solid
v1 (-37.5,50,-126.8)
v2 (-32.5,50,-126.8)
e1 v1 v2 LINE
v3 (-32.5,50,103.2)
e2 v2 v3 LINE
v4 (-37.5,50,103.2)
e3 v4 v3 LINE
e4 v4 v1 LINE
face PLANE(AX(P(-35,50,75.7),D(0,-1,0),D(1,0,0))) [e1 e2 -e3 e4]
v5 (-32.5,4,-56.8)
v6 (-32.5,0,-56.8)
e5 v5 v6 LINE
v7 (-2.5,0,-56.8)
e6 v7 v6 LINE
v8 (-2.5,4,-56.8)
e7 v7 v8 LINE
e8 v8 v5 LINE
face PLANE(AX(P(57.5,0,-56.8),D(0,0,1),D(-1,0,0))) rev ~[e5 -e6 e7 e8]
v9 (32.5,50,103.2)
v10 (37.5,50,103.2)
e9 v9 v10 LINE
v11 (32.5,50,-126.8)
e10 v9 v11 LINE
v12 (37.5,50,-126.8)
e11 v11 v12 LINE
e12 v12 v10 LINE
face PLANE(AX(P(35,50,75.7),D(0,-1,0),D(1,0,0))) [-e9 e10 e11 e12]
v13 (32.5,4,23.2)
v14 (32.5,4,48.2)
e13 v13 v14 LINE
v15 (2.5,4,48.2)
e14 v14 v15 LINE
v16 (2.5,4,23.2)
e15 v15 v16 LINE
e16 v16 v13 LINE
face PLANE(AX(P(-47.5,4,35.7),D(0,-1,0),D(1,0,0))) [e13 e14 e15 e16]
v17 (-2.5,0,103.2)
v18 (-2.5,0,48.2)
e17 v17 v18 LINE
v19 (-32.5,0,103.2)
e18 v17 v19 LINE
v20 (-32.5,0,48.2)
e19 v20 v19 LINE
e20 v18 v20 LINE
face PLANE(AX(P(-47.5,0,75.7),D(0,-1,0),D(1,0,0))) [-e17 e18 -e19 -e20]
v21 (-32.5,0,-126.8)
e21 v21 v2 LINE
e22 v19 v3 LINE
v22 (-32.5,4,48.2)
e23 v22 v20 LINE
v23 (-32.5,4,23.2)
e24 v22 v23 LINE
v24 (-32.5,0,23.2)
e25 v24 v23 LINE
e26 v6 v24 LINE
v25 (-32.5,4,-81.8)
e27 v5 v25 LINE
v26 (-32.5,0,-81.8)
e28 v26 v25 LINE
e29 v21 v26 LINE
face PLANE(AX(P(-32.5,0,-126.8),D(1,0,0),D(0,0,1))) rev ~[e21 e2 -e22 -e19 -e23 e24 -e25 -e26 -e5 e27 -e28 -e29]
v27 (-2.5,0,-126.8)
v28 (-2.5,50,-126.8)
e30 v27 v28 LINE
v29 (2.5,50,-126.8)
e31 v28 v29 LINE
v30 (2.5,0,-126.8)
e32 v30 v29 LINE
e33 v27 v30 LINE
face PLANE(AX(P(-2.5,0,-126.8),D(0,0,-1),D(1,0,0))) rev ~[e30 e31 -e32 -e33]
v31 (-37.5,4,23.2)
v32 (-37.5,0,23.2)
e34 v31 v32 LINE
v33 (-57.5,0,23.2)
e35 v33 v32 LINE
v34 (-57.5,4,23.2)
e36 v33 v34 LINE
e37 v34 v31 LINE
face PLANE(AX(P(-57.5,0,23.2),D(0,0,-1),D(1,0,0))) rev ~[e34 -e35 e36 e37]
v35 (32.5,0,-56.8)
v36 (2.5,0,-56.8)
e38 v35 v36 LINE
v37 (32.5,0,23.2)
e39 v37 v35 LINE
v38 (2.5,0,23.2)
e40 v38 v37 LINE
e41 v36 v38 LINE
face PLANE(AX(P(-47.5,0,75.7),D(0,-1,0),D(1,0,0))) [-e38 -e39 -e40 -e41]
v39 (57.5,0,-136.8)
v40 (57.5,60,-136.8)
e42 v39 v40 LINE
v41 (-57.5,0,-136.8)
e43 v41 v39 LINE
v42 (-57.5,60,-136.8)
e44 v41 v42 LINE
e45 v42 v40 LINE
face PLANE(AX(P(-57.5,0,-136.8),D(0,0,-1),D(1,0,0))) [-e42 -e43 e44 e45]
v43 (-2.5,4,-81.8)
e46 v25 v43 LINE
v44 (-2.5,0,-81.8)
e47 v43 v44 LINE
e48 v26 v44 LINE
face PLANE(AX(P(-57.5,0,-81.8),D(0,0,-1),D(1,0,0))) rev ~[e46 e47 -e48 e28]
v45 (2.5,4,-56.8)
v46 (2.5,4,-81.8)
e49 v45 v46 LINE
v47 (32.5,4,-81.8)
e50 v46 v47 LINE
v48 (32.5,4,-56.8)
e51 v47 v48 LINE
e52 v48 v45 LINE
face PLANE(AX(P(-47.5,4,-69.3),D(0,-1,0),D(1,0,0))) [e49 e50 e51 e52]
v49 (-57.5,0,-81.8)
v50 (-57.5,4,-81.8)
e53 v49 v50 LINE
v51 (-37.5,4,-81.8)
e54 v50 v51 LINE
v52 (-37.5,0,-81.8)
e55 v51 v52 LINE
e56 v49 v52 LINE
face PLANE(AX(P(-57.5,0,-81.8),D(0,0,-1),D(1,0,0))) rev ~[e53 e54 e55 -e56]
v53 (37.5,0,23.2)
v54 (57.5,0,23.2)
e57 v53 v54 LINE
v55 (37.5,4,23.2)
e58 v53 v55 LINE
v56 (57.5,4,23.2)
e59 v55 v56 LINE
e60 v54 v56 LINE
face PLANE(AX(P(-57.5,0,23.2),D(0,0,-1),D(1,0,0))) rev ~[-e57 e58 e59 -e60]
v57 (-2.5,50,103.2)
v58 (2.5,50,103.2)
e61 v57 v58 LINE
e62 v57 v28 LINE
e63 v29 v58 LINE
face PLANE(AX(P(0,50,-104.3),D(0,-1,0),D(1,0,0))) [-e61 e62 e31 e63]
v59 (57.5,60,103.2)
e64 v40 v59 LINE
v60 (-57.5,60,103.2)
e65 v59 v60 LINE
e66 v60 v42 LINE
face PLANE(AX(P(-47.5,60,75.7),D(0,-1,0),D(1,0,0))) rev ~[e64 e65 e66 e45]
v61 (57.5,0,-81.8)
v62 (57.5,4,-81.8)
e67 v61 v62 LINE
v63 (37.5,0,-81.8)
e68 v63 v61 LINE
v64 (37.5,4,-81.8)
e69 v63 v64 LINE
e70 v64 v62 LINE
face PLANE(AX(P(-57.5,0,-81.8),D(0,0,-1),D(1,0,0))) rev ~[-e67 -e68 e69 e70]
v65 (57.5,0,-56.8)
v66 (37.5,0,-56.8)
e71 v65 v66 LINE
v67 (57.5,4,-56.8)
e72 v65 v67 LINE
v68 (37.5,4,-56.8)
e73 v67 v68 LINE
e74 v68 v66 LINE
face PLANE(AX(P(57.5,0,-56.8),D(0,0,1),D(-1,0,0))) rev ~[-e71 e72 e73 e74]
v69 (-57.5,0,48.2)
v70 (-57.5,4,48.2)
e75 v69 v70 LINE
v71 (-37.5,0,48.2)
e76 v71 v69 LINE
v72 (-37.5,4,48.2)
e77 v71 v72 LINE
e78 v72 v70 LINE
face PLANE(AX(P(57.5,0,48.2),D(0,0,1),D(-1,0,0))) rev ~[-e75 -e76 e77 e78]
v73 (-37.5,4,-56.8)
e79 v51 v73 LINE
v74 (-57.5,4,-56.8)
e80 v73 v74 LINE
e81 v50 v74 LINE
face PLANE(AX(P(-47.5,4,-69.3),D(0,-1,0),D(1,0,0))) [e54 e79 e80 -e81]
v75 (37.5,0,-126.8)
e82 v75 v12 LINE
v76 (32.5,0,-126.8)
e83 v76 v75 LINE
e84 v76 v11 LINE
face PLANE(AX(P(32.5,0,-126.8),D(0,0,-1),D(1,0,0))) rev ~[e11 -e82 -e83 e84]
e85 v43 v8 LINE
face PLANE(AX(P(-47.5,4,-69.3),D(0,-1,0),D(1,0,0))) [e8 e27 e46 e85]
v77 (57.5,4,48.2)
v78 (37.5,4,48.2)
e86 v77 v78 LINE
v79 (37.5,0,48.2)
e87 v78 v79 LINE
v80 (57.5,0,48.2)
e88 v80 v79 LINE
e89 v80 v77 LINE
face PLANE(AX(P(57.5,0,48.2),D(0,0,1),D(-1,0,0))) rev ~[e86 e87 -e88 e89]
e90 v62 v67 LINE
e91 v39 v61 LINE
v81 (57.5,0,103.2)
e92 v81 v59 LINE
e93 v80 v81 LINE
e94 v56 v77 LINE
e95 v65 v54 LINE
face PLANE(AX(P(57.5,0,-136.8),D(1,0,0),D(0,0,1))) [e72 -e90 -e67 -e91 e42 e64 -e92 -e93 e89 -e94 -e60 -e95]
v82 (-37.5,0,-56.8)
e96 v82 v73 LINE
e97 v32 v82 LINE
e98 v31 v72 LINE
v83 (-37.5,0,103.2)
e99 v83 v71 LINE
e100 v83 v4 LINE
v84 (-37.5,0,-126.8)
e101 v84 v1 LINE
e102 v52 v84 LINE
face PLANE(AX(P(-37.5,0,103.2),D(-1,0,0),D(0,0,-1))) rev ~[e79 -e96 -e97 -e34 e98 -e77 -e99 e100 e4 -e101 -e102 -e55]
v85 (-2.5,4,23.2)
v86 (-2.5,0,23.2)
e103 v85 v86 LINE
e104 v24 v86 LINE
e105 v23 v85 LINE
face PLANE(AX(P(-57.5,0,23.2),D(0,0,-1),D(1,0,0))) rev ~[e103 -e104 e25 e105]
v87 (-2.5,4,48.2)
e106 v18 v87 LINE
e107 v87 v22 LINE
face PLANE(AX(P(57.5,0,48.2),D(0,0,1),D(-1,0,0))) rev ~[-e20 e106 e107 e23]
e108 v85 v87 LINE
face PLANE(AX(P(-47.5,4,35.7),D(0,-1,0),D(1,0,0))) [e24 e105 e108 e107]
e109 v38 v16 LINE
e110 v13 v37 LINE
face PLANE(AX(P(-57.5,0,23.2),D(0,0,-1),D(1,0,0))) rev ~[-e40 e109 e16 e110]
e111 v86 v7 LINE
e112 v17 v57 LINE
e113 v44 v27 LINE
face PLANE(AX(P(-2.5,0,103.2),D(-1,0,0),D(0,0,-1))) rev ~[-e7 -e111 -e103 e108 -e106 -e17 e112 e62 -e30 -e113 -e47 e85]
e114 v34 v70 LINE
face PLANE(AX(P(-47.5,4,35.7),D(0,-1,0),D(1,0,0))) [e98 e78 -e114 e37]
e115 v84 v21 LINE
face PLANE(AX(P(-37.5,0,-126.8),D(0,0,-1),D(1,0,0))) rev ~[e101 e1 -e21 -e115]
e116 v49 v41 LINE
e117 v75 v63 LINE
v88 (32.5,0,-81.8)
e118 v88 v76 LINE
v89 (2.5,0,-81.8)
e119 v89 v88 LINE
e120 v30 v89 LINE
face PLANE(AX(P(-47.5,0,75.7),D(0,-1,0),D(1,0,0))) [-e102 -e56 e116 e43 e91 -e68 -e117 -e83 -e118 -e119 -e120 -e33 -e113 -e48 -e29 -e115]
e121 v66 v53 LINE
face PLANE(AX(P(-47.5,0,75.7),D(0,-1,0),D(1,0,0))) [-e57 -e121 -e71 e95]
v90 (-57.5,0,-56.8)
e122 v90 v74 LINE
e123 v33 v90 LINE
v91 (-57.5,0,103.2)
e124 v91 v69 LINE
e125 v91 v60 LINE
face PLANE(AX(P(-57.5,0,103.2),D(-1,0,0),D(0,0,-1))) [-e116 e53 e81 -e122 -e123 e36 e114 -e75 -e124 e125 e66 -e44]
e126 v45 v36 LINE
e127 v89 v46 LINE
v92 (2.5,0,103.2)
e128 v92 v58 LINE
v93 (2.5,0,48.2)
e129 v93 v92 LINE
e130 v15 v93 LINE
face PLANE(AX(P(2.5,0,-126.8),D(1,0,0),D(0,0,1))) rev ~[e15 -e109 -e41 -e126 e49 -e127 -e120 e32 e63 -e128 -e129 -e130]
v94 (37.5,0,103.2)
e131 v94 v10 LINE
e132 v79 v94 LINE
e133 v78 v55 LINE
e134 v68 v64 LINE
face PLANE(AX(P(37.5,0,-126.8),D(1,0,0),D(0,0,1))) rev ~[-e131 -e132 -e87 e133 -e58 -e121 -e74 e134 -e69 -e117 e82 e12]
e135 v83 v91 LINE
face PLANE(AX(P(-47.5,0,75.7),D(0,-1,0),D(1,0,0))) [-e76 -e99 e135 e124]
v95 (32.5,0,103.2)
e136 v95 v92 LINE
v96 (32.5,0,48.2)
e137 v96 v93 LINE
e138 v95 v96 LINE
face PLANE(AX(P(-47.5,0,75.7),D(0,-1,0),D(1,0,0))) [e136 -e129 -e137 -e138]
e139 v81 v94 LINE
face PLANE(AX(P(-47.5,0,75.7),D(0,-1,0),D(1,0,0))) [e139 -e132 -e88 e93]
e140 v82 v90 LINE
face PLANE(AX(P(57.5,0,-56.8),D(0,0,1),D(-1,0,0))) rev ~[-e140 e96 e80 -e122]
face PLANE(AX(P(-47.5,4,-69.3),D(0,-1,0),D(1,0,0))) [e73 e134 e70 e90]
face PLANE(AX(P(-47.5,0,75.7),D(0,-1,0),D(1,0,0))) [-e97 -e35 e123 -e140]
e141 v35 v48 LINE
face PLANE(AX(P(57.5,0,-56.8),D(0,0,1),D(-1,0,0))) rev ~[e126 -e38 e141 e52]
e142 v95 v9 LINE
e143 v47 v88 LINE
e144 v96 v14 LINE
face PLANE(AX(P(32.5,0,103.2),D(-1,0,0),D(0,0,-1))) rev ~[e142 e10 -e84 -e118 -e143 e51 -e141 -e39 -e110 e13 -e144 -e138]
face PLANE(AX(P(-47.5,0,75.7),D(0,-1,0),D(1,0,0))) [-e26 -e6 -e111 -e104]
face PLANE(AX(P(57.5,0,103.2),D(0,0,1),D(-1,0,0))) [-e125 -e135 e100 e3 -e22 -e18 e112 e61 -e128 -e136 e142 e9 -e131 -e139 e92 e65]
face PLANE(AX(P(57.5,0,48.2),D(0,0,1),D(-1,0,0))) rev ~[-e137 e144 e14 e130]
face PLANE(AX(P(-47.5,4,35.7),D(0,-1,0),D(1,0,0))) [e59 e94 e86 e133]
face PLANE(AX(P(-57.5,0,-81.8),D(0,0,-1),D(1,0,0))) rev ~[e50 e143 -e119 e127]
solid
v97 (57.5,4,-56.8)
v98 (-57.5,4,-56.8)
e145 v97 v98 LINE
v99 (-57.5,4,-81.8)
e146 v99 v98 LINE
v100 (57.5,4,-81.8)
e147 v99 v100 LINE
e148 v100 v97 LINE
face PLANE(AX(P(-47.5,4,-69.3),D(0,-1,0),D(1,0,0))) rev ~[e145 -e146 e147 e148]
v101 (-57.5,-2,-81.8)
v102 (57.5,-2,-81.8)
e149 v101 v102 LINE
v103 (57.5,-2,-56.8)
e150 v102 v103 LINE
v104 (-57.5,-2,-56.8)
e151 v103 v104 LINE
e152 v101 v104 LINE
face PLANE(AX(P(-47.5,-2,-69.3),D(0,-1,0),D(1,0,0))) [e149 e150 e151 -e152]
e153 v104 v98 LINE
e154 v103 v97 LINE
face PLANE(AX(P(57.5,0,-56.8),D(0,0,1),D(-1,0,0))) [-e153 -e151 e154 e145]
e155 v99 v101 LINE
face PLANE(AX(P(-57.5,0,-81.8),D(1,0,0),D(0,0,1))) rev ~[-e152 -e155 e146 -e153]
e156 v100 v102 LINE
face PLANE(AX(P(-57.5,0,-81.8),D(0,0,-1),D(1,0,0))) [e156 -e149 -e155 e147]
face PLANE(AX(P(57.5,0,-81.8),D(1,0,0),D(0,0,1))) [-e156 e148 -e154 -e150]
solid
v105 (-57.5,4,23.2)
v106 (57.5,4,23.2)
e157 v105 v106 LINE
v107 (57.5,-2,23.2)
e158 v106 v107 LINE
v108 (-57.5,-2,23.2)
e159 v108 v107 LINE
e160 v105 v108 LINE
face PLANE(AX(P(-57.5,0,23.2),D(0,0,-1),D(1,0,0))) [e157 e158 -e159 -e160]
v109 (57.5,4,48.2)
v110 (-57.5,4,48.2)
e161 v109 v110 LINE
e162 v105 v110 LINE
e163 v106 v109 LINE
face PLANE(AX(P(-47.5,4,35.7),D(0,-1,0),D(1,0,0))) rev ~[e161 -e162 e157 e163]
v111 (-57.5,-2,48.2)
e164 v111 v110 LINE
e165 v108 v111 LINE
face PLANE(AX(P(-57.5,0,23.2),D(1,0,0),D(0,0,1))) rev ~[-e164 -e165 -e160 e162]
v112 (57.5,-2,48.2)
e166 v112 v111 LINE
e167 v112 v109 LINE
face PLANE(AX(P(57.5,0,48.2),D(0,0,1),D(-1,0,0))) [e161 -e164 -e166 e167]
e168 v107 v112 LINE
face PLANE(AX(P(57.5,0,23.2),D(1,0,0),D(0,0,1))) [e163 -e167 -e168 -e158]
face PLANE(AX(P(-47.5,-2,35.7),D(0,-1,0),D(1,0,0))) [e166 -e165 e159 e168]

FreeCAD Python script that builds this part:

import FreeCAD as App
import Part
import Sketcher

V = App.Vector
Q = App.Units.Quantity

doc = App.newDocument("Part")
params = doc.addObject("Spreadsheet::Sheet", "Params")
for row, (alias, value) in enumerate([
    ("sketch1_width", "115 mm"),
    ("sketch1_height", "240 mm"),
    ("pad1_length", "60 mm"),
    ("sketch2_width", "5 mm"),
    ("sketch2_height", "230 mm"),
    ("pocket1_length", "50 mm"),
    ("sketch3_width", "115 mm"),
    ("sketch3_height", "25 mm"),
    ("pocket2_length", "4 mm"),
    ("sketch4_width", "115 mm"),
    ("sketch4_height", "25 mm"),
    ("pad2_length", "2 mm"),
    ("pad2_length2", "4 mm"),
    ("sketch5_width", "115 mm"),
    ("sketch5_height", "25 mm"),
    ("pad3_length", "2 mm"),
    ("pad3_length2", "4 mm"),
], start=1):
    params.set(f"A{row}", alias)
    params.set(f"B{row}", "=" + value)
    params.setAlias(f"B{row}", alias)

body = doc.addObject("PartDesign::Body", "Body")

sketch1 = body.newObject("Sketcher::SketchObject", "Sketch")
sketch1.AttachmentSupport = (doc.getObject("XZ_Plane"), [""])
sketch1.MapMode = "FlatFace"
sketch1.addGeometry([
    Part.LineSegment(V(-58, 103, 0), V(-58, -137, 0)),
    Part.LineSegment(V(-58, -137, 0), V(58, -137, 0)),
    Part.LineSegment(V(58, -137, 0), V(58, 103, 0)),
    Part.LineSegment(V(58, 103, 0), V(-58, 103, 0)),
], False)
sketch1.addConstraint([
    Sketcher.Constraint("Coincident", 0, 2, 1, 1),
    Sketcher.Constraint("Coincident", 1, 2, 2, 1),
    Sketcher.Constraint("Coincident", 2, 2, 3, 1),
    Sketcher.Constraint("Coincident", 3, 2, 0, 1),
    Sketcher.Constraint("Vertical", 0),
    Sketcher.Constraint("Horizontal", 1),
    Sketcher.Constraint("Vertical", 2),
    Sketcher.Constraint("Horizontal", 3),
    Sketcher.Constraint("DistanceX", 1, 1, 1, 2, Q("115 mm")),
    Sketcher.Constraint("DistanceY", 0, 2, 0, 1, Q("240 mm")),
    Sketcher.Constraint("DistanceX", 0, 2, -1, 1, Q("57.5 mm")),
    Sketcher.Constraint("DistanceY", 0, 2, -1, 1, Q("136.8 mm")),
])
sketch1.setExpression("Constraints[8]", "Params.sketch1_width")
sketch1.setExpression("Constraints[9]", "Params.sketch1_height")
pad1 = body.newObject("PartDesign::Pad", "Pad")
pad1.Profile = sketch1
pad1.setExpression("Length", "Params.pad1_length")
pad1.Reversed = True

sketch2 = body.newObject("Sketcher::SketchObject", "Sketch001")
sketch2.AttachmentSupport = (doc.getObject("XZ_Plane"), [""])
sketch2.MapMode = "FlatFace"
sketch2.addGeometry([
    Part.LineSegment(V(-38, 103, 0), V(-38, -127, 0)),
    Part.LineSegment(V(-38, -127, 0), V(-32, -127, 0)),
    Part.LineSegment(V(-32, -127, 0), V(-32, 103, 0)),
    Part.LineSegment(V(-32, 103, 0), V(-38, 103, 0)),
    Part.LineSegment(V(-2, -127, 0), V(2, -127, 0)),
    Part.LineSegment(V(2, -127, 0), V(2, 103, 0)),
    Part.LineSegment(V(2, 103, 0), V(-2, 103, 0)),
    Part.LineSegment(V(-2, 103, 0), V(-2, -127, 0)),
    Part.LineSegment(V(32, 103, 0), V(32, -127, 0)),
    Part.LineSegment(V(32, -127, 0), V(38, -127, 0)),
    Part.LineSegment(V(38, -127, 0), V(38, 103, 0)),
    Part.LineSegment(V(38, 103, 0), V(32, 103, 0)),
], False)
sketch2.addConstraint([
    Sketcher.Constraint("Coincident", 0, 2, 1, 1),
    Sketcher.Constraint("Coincident", 1, 2, 2, 1),
    Sketcher.Constraint("Coincident", 2, 2, 3, 1),
    Sketcher.Constraint("Coincident", 3, 2, 0, 1),
    Sketcher.Constraint("Coincident", 4, 2, 5, 1),
    Sketcher.Constraint("Coincident", 5, 2, 6, 1),
    Sketcher.Constraint("Coincident", 6, 2, 7, 1),
    Sketcher.Constraint("Coincident", 7, 2, 4, 1),
    Sketcher.Constraint("Coincident", 8, 2, 9, 1),
    Sketcher.Constraint("Coincident", 9, 2, 10, 1),
    Sketcher.Constraint("Coincident", 10, 2, 11, 1),
    Sketcher.Constraint("Coincident", 11, 2, 8, 1),
    Sketcher.Constraint("Vertical", 0),
    Sketcher.Constraint("Horizontal", 1),
    Sketcher.Constraint("Vertical", 2),
    Sketcher.Constraint("Horizontal", 3),
    Sketcher.Constraint("Horizontal", 4),
    Sketcher.Constraint("Vertical", 5),
    Sketcher.Constraint("Horizontal", 6),
    Sketcher.Constraint("Vertical", 7),
    Sketcher.Constraint("Vertical", 8),
    Sketcher.Constraint("Horizontal", 9),
    Sketcher.Constraint("Vertical", 10),
    Sketcher.Constraint("Horizontal", 11),
    Sketcher.Constraint("Symmetric", 1, 2, 8, 2, -2),
    Sketcher.Constraint("Symmetric", 3, 2, 10, 2, -2),
    Sketcher.Constraint("Horizontal", 1, 2, 4, 2),
    Sketcher.Constraint("Horizontal", 3, 2, 5, 2),
    Sketcher.Constraint("Equal", 3, 4),
    Sketcher.Constraint("DistanceX", 1, 1, 1, 2, Q("5 mm")),
    Sketcher.Constraint("DistanceY", 0, 2, 0, 1, Q("230 mm")),
    Sketcher.Constraint("DistanceX", 1, 2, 4, 2, Q("35 mm")),
    Sketcher.Constraint("DistanceX", 4, 2, 8, 2, Q("30 mm")),
    Sketcher.Constraint("DistanceY", 0, 2, -1, 1, Q("126.8 mm")),
])
sketch2.setExpression("Constraints[29]", "Params.sketch2_width")
sketch2.setExpression("Constraints[30]", "Params.sketch2_height")
pocket1 = body.newObject("PartDesign::Pocket", "Pocket")
pocket1.Profile = sketch2
pocket1.setExpression("Length", "Params.pocket1_length")

sketch3 = body.newObject("Sketcher::SketchObject", "Sketch002")
sketch3.AttachmentSupport = (doc.getObject("XZ_Plane"), [""])
sketch3.MapMode = "FlatFace"
sketch3.addGeometry([
    Part.LineSegment(V(-58, 48, 0), V(-58, 23, 0)),
    Part.LineSegment(V(-58, 23, 0), V(58, 23, 0)),
    Part.LineSegment(V(58, 23, 0), V(58, 48, 0)),
    Part.LineSegment(V(58, 48, 0), V(-58, 48, 0)),
    Part.LineSegment(V(-58, -57, 0), V(-58, -82, 0)),
    Part.LineSegment(V(-58, -82, 0), V(58, -82, 0)),
    Part.LineSegment(V(58, -82, 0), V(58, -57, 0)),
    Part.LineSegment(V(58, -57, 0), V(-58, -57, 0)),
], False)
sketch3.addConstraint([
    Sketcher.Constraint("Coincident", 0, 2, 1, 1),
    Sketcher.Constraint("Coincident", 1, 2, 2, 1),
    Sketcher.Constraint("Coincident", 2, 2, 3, 1),
    Sketcher.Constraint("Coincident", 3, 2, 0, 1),
    Sketcher.Constraint("Coincident", 4, 2, 5, 1),
    Sketcher.Constraint("Coincident", 5, 2, 6, 1),
    Sketcher.Constraint("Coincident", 6, 2, 7, 1),
    Sketcher.Constraint("Coincident", 7, 2, 4, 1),
    Sketcher.Constraint("Vertical", 0),
    Sketcher.Constraint("Horizontal", 1),
    Sketcher.Constraint("Vertical", 2),
    Sketcher.Constraint("Horizontal", 3),
    Sketcher.Constraint("Vertical", 4),
    Sketcher.Constraint("Horizontal", 5),
    Sketcher.Constraint("Vertical", 6),
    Sketcher.Constraint("Horizontal", 7),
    Sketcher.Constraint("Vertical", 3, 2, 4, 2),
    Sketcher.Constraint("Vertical", 2, 2, 5, 2),
    Sketcher.Constraint("Equal", 2, 4),
    Sketcher.Constraint("DistanceX", 1, 1, 1, 2, Q("115 mm")),
    Sketcher.Constraint("DistanceY", 0, 2, 0, 1, Q("25 mm")),
    Sketcher.Constraint("DistanceY", 4, 2, 0, 2, Q("105 mm")),
    Sketcher.Constraint("DistanceX", 0, 2, -1, 1, Q("57.5 mm")),
    Sketcher.Constraint("DistanceY", -1, 1, 0, 2, Q("23.2 mm")),
])
sketch3.setExpression("Constraints[19]", "Params.sketch3_width")
sketch3.setExpression("Constraints[20]", "Params.sketch3_height")
pocket2 = body.newObject("PartDesign::Pocket", "Pocket001")
pocket2.Profile = sketch3
pocket2.setExpression("Length", "Params.pocket2_length")
body2 = doc.addObject("PartDesign::Body", "Body001")

sketch4 = body2.newObject("Sketcher::SketchObject", "Sketch003")
sketch4.AttachmentSupport = (doc.getObject("XZ_Plane001"), [""])
sketch4.MapMode = "FlatFace"
sketch4.addGeometry([
    Part.LineSegment(V(-58, 48, 0), V(-58, 23, 0)),
    Part.LineSegment(V(-58, 23, 0), V(58, 23, 0)),
    Part.LineSegment(V(58, 23, 0), V(58, 48, 0)),
    Part.LineSegment(V(58, 48, 0), V(-58, 48, 0)),
], False)
sketch4.addConstraint([
    Sketcher.Constraint("Coincident", 0, 2, 1, 1),
    Sketcher.Constraint("Coincident", 1, 2, 2, 1),
    Sketcher.Constraint("Coincident", 2, 2, 3, 1),
    Sketcher.Constraint("Coincident", 3, 2, 0, 1),
    Sketcher.Constraint("Vertical", 0),
    Sketcher.Constraint("Horizontal", 1),
    Sketcher.Constraint("Vertical", 2),
    Sketcher.Constraint("Horizontal", 3),
    Sketcher.Constraint("DistanceX", 1, 1, 1, 2, Q("115 mm")),
    Sketcher.Constraint("DistanceY", 0, 2, 0, 1, Q("25 mm")),
    Sketcher.Constraint("DistanceX", 0, 2, -1, 1, Q("57.5 mm")),
    Sketcher.Constraint("DistanceY", -1, 1, 0, 2, Q("23.2 mm")),
])
sketch4.setExpression("Constraints[8]", "Params.sketch4_width")
sketch4.setExpression("Constraints[9]", "Params.sketch4_height")
pad2 = body2.newObject("PartDesign::Pad", "Pad001")
pad2.Profile = sketch4
pad2.Type = "TwoLengths"
pad2.setExpression("Length", "Params.pad2_length")
pad2.setExpression("Length2", "Params.pad2_length2")
body3 = doc.addObject("PartDesign::Body", "Body002")

sketch5 = body3.newObject("Sketcher::SketchObject", "Sketch004")
sketch5.AttachmentSupport = (doc.getObject("XZ_Plane002"), [""])
sketch5.MapMode = "FlatFace"
sketch5.addGeometry([
    Part.LineSegment(V(-58, -57, 0), V(-58, -82, 0)),
    Part.LineSegment(V(-58, -82, 0), V(58, -82, 0)),
    Part.LineSegment(V(58, -82, 0), V(58, -57, 0)),
    Part.LineSegment(V(58, -57, 0), V(-58, -57, 0)),
], False)
sketch5.addConstraint([
    Sketcher.Constraint("Coincident", 0, 2, 1, 1),
    Sketcher.Constraint("Coincident", 1, 2, 2, 1),
    Sketcher.Constraint("Coincident", 2, 2, 3, 1),
    Sketcher.Constraint("Coincident", 3, 2, 0, 1),
    Sketcher.Constraint("Vertical", 0),
    Sketcher.Constraint("Horizontal", 1),
    Sketcher.Constraint("Vertical", 2),
    Sketcher.Constraint("Horizontal", 3),
    Sketcher.Constraint("DistanceX", 1, 1, 1, 2, Q("115 mm")),
    Sketcher.Constraint("DistanceY", 0, 2, 0, 1, Q("25 mm")),
    Sketcher.Constraint("DistanceX", 0, 2, -1, 1, Q("57.5 mm")),
    Sketcher.Constraint("DistanceY", 0, 2, -1, 1, Q("81.8 mm")),
])
sketch5.setExpression("Constraints[8]", "Params.sketch5_width")
sketch5.setExpression("Constraints[9]", "Params.sketch5_height")
pad3 = body3.newObject("PartDesign::Pad", "Pad002")
pad3.Profile = sketch5
pad3.Type = "TwoLengths"
pad3.setExpression("Length", "Params.pad3_length")
pad3.setExpression("Length2", "Params.pad3_length2")

doc.recompute()
